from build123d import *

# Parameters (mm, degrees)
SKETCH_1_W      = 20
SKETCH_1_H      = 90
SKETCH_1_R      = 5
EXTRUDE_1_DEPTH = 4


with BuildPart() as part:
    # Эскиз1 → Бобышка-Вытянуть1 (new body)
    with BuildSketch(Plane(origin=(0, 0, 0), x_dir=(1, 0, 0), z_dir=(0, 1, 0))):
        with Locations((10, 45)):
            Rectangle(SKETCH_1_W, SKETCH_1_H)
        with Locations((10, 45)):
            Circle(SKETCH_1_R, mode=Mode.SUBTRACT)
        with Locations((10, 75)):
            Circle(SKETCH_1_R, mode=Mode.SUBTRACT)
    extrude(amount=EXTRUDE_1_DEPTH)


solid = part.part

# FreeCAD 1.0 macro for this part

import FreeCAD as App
import Part
import Sketcher


def add_polygon(sketch, points):
    """Adds a closed chain of lines whose ends are joined by coincident constraints."""
    first, n = sketch.GeometryCount, len(points)
    for a, b in zip(points, points[1:] + points[:1]):
        sketch.addGeometry(Part.LineSegment(App.Vector(*a, 0), App.Vector(*b, 0)), False)
    for i in range(n):
        sketch.addConstraint(Sketcher.Constraint("Coincident", first + i, 2, first + (i + 1) % n, 1))

doc = App.newDocument("Part")
body = doc.addObject("PartDesign::Body", "Body")

sketch1 = body.newObject("Sketcher::SketchObject", "Sketch")
sketch1.AttachmentSupport = (doc.getObject("XZ_Plane"), [""])
sketch1.MapMode = "FlatFace"
add_polygon(sketch1, [(0, -90), (0, 0), (20, 0), (20, -90)])
sketch1.addGeometry(Part.Circle(App.Vector(10, -45, 0), App.Vector(0, 0, 1), 5), False)
sketch1.addGeometry(Part.Circle(App.Vector(10, -75, 0), App.Vector(0, 0, 1), 5), False)
sketch1.addConstraint(Sketcher.Constraint("Vertical", 0))
sketch1.addConstraint(Sketcher.Constraint("Horizontal", 1))
sketch1.addConstraint(Sketcher.Constraint("Vertical", 2))
sketch1.addConstraint(Sketcher.Constraint("Horizontal", 3))
sketch1.addConstraint(Sketcher.Constraint("Coincident", 0, 2, -1, 1))
sketch1.addConstraint(Sketcher.Constraint("Equal", 4, 5))
sketch1.addConstraint(Sketcher.Constraint("Vertical", 4, 3, 5, 3))
sketch1.addConstraint(Sketcher.Constraint("Diameter", 4, 10.0))
sketch1.addConstraint(Sketcher.Constraint("DistanceX", 1, 1, 1, 2, 20.0))
sketch1.addConstraint(Sketcher.Constraint("DistanceY", 0, 1, 0, 2, 90.0))
sketch1.addConstraint(Sketcher.Constraint("DistanceX", -1, 1, 4, 3, 10.0))
sketch1.addConstraint(Sketcher.Constraint("DistanceY", 4, 3, -1, 1, 45.0))
sketch1.addConstraint(Sketcher.Constraint("DistanceY", 5, 3, -1, 1, 75.0))
pad1 = body.newObject("PartDesign::Pad", "Pad")
pad1.Profile = sketch1
pad1.Length = 4
pad1.Reversed = True

doc.recompute()
